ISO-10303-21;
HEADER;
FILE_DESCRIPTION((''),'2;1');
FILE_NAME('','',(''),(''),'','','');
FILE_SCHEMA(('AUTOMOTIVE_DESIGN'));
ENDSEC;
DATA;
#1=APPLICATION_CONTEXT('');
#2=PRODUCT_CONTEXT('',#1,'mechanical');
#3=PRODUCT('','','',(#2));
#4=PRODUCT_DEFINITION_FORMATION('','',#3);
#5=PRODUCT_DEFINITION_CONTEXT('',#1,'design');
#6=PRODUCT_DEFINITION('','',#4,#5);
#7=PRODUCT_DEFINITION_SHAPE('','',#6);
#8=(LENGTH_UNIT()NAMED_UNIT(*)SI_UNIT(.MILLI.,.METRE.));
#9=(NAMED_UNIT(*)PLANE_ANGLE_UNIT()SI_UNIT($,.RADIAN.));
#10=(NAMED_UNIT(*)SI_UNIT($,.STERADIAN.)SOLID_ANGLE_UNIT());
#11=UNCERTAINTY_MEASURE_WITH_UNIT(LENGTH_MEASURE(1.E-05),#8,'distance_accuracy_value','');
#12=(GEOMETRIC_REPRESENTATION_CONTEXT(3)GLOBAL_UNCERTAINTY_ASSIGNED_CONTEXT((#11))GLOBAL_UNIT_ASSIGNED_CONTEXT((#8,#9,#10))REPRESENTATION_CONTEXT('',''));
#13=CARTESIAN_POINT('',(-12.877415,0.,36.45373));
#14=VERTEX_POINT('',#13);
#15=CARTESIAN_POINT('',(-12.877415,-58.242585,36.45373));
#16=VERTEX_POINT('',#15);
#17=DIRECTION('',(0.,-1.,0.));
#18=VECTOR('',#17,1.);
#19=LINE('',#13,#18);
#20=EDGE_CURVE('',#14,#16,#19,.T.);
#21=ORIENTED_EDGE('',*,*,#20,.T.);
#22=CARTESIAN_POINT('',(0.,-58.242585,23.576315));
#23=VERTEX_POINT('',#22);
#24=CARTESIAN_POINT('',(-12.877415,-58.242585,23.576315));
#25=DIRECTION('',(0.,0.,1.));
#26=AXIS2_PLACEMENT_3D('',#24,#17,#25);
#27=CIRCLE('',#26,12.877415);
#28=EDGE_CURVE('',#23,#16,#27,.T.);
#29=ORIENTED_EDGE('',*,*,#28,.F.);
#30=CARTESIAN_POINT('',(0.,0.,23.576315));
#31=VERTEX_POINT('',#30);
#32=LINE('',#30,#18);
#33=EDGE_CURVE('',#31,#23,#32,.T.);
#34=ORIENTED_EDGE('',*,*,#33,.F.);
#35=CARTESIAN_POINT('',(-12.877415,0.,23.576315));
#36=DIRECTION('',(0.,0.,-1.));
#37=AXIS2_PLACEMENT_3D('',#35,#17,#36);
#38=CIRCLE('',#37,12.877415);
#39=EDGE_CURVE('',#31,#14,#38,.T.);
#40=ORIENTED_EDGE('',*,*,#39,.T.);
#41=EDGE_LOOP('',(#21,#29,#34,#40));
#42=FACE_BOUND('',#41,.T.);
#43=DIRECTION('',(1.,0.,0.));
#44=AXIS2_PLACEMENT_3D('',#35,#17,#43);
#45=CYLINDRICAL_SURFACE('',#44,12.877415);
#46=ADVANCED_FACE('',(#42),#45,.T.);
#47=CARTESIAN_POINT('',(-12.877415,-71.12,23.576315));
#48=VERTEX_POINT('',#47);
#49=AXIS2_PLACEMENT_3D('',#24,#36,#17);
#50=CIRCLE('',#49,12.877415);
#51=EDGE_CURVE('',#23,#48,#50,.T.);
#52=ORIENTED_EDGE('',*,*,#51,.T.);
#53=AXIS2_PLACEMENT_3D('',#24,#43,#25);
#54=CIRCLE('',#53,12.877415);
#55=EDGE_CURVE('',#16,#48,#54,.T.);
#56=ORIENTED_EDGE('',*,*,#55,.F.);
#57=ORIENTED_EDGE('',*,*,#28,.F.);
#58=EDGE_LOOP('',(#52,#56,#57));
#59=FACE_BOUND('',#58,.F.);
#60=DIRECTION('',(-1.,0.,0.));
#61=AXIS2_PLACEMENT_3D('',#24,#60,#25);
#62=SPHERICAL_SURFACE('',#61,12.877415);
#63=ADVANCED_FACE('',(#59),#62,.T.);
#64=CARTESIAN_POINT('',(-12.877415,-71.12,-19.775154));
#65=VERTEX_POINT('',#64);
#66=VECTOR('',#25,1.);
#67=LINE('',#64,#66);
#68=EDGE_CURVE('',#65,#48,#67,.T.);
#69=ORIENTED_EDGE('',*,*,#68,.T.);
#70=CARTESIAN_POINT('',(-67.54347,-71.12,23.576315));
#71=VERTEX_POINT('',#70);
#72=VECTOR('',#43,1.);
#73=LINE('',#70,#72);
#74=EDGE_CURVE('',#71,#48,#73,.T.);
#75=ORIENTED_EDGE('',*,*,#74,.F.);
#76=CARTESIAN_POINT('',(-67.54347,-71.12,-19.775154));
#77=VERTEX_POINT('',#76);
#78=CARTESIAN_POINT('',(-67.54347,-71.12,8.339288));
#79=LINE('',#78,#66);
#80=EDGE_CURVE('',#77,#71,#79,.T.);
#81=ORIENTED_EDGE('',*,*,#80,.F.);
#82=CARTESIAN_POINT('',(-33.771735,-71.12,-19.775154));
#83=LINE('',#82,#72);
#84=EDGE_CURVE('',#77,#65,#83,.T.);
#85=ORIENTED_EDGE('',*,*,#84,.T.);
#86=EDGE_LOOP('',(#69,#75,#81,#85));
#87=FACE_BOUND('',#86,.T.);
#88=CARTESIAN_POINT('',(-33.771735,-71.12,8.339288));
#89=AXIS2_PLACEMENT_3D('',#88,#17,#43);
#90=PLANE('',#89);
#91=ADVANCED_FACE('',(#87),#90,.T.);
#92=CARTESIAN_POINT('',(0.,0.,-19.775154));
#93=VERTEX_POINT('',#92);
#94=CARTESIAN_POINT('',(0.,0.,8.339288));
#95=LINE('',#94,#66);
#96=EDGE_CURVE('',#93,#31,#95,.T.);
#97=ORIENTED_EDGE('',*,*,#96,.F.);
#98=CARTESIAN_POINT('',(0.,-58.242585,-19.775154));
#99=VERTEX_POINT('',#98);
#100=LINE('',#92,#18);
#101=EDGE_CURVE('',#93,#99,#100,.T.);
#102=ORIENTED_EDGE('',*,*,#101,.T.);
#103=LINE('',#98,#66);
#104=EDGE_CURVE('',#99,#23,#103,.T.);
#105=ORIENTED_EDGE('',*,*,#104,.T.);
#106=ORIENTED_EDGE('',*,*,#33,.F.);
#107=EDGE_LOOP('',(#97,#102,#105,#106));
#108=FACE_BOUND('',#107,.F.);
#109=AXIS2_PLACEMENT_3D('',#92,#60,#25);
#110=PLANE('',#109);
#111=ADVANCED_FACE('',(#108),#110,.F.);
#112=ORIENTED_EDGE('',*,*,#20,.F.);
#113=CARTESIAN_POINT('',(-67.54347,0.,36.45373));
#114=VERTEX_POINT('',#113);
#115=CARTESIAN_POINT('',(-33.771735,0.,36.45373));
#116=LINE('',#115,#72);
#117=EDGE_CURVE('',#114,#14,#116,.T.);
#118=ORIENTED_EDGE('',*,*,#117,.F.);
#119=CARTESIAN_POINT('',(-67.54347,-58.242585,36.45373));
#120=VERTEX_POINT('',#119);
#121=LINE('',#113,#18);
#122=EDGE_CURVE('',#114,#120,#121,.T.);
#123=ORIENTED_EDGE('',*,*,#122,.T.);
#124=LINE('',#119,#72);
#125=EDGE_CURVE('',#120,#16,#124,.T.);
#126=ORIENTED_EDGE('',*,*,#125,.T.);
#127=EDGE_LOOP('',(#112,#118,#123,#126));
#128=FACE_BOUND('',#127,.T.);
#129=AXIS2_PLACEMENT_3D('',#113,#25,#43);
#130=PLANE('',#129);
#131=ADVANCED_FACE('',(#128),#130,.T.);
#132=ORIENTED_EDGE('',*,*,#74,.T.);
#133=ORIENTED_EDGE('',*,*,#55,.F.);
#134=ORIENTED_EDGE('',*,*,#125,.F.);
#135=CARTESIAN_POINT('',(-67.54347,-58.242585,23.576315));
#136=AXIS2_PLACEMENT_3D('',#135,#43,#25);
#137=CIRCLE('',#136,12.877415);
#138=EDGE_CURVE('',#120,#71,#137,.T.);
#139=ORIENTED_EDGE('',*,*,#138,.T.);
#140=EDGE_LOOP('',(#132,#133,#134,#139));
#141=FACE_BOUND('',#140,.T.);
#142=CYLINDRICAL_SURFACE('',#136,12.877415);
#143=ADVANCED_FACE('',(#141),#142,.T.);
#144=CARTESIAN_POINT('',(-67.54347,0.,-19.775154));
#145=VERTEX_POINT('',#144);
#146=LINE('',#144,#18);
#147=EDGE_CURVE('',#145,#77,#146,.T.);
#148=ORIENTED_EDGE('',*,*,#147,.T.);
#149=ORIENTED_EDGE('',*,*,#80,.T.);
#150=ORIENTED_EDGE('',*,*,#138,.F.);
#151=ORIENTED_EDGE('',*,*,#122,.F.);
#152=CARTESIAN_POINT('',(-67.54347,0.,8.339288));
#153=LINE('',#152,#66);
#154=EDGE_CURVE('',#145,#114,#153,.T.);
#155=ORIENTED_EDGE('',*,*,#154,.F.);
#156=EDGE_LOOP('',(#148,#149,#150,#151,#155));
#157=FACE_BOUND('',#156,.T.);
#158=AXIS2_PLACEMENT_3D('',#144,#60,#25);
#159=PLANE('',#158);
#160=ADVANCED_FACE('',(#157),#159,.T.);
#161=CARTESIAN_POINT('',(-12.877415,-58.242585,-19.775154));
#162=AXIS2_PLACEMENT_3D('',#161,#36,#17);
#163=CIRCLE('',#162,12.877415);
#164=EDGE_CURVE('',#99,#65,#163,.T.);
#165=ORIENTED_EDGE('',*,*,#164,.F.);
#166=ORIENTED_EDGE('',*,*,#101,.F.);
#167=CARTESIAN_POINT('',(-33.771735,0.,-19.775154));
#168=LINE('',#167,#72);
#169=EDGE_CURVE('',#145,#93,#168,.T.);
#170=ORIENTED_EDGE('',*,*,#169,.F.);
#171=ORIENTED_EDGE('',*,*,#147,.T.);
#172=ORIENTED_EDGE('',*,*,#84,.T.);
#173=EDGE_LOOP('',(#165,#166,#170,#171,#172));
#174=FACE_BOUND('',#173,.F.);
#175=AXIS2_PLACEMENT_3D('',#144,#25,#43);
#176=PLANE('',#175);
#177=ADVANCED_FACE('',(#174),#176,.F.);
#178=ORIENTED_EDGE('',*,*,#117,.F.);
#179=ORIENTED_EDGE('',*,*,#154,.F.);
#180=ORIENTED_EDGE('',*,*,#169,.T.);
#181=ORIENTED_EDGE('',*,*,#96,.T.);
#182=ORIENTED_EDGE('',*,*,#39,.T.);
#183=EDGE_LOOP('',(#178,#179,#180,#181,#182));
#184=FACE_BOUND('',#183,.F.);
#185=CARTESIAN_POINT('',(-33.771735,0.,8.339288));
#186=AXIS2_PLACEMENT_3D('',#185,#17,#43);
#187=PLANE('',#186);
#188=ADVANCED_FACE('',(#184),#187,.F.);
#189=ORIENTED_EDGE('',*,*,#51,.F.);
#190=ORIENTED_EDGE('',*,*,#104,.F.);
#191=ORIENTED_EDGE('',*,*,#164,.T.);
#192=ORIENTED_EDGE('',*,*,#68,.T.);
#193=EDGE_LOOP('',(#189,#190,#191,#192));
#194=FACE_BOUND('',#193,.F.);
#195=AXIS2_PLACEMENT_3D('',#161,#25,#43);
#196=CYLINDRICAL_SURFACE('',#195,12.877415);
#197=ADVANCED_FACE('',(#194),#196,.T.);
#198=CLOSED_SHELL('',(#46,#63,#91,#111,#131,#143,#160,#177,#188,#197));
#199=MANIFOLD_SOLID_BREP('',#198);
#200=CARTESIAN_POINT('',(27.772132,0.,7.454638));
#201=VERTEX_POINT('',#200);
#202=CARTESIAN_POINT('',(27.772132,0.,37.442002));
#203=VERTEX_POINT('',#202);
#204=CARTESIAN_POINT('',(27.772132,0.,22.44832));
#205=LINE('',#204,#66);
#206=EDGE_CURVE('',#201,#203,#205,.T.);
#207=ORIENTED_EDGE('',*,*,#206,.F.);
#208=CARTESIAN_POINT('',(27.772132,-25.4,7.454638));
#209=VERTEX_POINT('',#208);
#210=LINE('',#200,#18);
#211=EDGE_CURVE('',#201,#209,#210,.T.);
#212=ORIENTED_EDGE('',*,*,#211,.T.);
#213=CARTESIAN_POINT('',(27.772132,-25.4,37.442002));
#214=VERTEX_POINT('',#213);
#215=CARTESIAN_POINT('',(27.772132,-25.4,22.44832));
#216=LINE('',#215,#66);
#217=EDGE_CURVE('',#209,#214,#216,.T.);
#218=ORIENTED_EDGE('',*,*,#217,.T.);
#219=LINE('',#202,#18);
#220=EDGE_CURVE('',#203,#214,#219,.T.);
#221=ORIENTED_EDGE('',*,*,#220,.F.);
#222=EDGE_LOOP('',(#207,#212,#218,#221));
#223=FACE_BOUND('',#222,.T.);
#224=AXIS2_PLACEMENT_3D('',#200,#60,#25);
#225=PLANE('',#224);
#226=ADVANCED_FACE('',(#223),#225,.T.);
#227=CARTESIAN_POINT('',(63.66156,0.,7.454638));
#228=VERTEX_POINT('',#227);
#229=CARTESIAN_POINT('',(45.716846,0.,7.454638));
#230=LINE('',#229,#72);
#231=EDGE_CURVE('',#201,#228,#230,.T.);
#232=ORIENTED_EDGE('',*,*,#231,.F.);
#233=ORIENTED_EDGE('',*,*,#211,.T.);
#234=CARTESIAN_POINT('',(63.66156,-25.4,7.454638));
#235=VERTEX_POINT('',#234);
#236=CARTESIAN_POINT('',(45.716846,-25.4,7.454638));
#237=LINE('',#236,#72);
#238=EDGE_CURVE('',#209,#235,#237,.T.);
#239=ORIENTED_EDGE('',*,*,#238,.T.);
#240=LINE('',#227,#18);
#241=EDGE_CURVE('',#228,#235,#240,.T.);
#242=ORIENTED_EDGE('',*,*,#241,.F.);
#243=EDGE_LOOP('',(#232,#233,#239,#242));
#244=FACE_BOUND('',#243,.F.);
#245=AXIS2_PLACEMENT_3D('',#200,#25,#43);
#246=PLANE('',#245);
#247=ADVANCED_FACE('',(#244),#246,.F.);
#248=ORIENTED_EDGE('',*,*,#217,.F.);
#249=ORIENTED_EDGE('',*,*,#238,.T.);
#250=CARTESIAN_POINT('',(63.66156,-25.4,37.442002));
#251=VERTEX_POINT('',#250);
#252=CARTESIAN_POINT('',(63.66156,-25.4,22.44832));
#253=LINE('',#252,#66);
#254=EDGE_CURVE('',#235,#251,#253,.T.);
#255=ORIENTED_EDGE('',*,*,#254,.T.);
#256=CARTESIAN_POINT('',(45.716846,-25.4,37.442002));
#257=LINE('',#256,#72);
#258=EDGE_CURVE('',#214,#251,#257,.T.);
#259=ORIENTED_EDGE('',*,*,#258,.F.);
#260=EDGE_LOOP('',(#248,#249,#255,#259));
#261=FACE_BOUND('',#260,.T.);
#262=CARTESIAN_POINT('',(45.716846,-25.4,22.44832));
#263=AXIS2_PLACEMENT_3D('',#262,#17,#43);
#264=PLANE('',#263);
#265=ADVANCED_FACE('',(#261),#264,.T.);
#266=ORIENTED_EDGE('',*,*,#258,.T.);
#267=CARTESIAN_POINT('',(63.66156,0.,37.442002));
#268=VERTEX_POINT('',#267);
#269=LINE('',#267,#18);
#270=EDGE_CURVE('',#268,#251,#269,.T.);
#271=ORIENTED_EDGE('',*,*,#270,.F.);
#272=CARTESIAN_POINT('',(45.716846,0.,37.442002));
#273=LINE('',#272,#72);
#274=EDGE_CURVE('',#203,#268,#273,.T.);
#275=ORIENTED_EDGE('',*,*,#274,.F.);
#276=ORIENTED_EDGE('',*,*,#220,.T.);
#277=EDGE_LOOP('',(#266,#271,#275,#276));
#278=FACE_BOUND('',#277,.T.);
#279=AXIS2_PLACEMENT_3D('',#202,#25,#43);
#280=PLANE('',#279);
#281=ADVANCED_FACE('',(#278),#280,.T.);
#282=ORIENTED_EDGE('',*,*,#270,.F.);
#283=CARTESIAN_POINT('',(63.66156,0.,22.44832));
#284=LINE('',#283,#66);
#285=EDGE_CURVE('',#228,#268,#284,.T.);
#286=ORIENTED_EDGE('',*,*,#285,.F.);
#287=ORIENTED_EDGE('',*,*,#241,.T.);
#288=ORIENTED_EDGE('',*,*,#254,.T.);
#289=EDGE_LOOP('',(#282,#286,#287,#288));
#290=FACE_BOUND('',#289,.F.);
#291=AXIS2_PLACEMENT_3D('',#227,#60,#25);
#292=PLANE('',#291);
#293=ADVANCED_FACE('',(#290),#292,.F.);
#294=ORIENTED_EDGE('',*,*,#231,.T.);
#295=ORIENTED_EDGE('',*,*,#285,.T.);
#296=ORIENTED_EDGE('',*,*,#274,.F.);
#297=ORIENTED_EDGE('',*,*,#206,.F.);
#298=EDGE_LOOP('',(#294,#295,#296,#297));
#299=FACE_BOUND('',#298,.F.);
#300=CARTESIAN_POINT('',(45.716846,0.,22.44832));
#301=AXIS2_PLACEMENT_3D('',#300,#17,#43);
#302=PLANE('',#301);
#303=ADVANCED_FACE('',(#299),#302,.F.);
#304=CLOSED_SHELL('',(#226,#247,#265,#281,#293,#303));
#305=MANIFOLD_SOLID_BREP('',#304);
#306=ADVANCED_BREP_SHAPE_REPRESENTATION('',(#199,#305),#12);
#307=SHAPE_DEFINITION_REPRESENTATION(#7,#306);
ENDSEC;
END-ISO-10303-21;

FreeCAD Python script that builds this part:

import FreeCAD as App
import Part
import Sketcher

V = App.Vector
Q = App.Units.Quantity


def edges_at(feature, points):
    """Names of the edges that pass closest to the given points."""
    edges = feature.Shape.Edges
    near = lambda p: min(range(len(edges)), key=lambda i: edges[i].distToShape(Part.Vertex(*p))[0])
    return sorted({f"Edge{near(p) + 1}" for p in points})


def add_polygon(sketch, points):
    """Adds a closed chain of lines whose ends are joined by coincident constraints."""
    first, n = sketch.GeometryCount, len(points)
    for a, b in zip(points, points[1:] + points[:1]):
        sketch.addGeometry(Part.LineSegment(App.Vector(*a, 0), App.Vector(*b, 0)), False)
    for i in range(n):
        sketch.addConstraint(Sketcher.Constraint("Coincident", first + i, 2, first + (i + 1) % n, 1))

doc = App.newDocument("Part")
body = doc.addObject("PartDesign::Body", "Body")

sketch1 = doc.addObject("Sketcher::SketchObject", "Sketch")
body.addObject(sketch1)
sketch1.AttachmentSupport = (doc.XZ_Plane, [""])
sketch1.MapMode = "FlatFace"
add_polygon(sketch1, [(-68, 36), (-68, -20), (0, -20), (0, 36)])
sketch1.addConstraint([
    Sketcher.Constraint("Vertical", 0),
    Sketcher.Constraint("Horizontal", 1),
    Sketcher.Constraint("Vertical", 2),
    Sketcher.Constraint("Horizontal", 3),
    Sketcher.Constraint("PointOnObject", 1, 2, -2),
    Sketcher.Constraint("DistanceX", 1, 1, 1, 2, 67.543469),
    Sketcher.Constraint("DistanceY", 0, 2, 0, 1, 56.228885),
    Sketcher.Constraint("DistanceY", -1, 1, 2, 2, 36.45373),
])
pad1 = doc.addObject("PartDesign::Pad", "Pad")
body.addObject(pad1)
pad1.Profile = sketch1
pad1.Length = Q("2.8 in")
doc.recompute()

fillet = doc.addObject("PartDesign::Fillet", "Fillet")
body.addObject(fillet)
fillet.Base = (pad1, edges_at(pad1, [(-33.772, -71.12, 36.454), (0, -35.56, 36.454), (0, -71.12, 8.339)]))
fillet.Radius = 12.877415
body2 = doc.addObject("PartDesign::Body", "Body001")

sketch2 = doc.addObject("Sketcher::SketchObject", "Sketch001")
body2.addObject(sketch2)
sketch2.AttachmentSupport = (doc.getObject("XZ_Plane001"), [""])
sketch2.MapMode = "FlatFace"
add_polygon(sketch2, [(28, 37), (28, 7), (64, 7), (64, 37)])
sketch2.addConstraint([
    Sketcher.Constraint("Vertical", 0),
    Sketcher.Constraint("Horizontal", 1),
    Sketcher.Constraint("Vertical", 2),
    Sketcher.Constraint("Horizontal", 3),
    Sketcher.Constraint("DistanceX", 1, 1, 1, 2, 35.889428),
    Sketcher.Constraint("DistanceY", 0, 2, 0, 1, 29.987364),
    Sketcher.Constraint("DistanceX", -1, 1, 0, 2, 27.772132),
    Sketcher.Constraint("DistanceY", -1, 1, 0, 2, 7.454638),
])
pad2 = doc.addObject("PartDesign::Pad", "Pad001")
body2.addObject(pad2)
pad2.Profile = sketch2
pad2.Length = Q("1 in")

doc.recompute()
